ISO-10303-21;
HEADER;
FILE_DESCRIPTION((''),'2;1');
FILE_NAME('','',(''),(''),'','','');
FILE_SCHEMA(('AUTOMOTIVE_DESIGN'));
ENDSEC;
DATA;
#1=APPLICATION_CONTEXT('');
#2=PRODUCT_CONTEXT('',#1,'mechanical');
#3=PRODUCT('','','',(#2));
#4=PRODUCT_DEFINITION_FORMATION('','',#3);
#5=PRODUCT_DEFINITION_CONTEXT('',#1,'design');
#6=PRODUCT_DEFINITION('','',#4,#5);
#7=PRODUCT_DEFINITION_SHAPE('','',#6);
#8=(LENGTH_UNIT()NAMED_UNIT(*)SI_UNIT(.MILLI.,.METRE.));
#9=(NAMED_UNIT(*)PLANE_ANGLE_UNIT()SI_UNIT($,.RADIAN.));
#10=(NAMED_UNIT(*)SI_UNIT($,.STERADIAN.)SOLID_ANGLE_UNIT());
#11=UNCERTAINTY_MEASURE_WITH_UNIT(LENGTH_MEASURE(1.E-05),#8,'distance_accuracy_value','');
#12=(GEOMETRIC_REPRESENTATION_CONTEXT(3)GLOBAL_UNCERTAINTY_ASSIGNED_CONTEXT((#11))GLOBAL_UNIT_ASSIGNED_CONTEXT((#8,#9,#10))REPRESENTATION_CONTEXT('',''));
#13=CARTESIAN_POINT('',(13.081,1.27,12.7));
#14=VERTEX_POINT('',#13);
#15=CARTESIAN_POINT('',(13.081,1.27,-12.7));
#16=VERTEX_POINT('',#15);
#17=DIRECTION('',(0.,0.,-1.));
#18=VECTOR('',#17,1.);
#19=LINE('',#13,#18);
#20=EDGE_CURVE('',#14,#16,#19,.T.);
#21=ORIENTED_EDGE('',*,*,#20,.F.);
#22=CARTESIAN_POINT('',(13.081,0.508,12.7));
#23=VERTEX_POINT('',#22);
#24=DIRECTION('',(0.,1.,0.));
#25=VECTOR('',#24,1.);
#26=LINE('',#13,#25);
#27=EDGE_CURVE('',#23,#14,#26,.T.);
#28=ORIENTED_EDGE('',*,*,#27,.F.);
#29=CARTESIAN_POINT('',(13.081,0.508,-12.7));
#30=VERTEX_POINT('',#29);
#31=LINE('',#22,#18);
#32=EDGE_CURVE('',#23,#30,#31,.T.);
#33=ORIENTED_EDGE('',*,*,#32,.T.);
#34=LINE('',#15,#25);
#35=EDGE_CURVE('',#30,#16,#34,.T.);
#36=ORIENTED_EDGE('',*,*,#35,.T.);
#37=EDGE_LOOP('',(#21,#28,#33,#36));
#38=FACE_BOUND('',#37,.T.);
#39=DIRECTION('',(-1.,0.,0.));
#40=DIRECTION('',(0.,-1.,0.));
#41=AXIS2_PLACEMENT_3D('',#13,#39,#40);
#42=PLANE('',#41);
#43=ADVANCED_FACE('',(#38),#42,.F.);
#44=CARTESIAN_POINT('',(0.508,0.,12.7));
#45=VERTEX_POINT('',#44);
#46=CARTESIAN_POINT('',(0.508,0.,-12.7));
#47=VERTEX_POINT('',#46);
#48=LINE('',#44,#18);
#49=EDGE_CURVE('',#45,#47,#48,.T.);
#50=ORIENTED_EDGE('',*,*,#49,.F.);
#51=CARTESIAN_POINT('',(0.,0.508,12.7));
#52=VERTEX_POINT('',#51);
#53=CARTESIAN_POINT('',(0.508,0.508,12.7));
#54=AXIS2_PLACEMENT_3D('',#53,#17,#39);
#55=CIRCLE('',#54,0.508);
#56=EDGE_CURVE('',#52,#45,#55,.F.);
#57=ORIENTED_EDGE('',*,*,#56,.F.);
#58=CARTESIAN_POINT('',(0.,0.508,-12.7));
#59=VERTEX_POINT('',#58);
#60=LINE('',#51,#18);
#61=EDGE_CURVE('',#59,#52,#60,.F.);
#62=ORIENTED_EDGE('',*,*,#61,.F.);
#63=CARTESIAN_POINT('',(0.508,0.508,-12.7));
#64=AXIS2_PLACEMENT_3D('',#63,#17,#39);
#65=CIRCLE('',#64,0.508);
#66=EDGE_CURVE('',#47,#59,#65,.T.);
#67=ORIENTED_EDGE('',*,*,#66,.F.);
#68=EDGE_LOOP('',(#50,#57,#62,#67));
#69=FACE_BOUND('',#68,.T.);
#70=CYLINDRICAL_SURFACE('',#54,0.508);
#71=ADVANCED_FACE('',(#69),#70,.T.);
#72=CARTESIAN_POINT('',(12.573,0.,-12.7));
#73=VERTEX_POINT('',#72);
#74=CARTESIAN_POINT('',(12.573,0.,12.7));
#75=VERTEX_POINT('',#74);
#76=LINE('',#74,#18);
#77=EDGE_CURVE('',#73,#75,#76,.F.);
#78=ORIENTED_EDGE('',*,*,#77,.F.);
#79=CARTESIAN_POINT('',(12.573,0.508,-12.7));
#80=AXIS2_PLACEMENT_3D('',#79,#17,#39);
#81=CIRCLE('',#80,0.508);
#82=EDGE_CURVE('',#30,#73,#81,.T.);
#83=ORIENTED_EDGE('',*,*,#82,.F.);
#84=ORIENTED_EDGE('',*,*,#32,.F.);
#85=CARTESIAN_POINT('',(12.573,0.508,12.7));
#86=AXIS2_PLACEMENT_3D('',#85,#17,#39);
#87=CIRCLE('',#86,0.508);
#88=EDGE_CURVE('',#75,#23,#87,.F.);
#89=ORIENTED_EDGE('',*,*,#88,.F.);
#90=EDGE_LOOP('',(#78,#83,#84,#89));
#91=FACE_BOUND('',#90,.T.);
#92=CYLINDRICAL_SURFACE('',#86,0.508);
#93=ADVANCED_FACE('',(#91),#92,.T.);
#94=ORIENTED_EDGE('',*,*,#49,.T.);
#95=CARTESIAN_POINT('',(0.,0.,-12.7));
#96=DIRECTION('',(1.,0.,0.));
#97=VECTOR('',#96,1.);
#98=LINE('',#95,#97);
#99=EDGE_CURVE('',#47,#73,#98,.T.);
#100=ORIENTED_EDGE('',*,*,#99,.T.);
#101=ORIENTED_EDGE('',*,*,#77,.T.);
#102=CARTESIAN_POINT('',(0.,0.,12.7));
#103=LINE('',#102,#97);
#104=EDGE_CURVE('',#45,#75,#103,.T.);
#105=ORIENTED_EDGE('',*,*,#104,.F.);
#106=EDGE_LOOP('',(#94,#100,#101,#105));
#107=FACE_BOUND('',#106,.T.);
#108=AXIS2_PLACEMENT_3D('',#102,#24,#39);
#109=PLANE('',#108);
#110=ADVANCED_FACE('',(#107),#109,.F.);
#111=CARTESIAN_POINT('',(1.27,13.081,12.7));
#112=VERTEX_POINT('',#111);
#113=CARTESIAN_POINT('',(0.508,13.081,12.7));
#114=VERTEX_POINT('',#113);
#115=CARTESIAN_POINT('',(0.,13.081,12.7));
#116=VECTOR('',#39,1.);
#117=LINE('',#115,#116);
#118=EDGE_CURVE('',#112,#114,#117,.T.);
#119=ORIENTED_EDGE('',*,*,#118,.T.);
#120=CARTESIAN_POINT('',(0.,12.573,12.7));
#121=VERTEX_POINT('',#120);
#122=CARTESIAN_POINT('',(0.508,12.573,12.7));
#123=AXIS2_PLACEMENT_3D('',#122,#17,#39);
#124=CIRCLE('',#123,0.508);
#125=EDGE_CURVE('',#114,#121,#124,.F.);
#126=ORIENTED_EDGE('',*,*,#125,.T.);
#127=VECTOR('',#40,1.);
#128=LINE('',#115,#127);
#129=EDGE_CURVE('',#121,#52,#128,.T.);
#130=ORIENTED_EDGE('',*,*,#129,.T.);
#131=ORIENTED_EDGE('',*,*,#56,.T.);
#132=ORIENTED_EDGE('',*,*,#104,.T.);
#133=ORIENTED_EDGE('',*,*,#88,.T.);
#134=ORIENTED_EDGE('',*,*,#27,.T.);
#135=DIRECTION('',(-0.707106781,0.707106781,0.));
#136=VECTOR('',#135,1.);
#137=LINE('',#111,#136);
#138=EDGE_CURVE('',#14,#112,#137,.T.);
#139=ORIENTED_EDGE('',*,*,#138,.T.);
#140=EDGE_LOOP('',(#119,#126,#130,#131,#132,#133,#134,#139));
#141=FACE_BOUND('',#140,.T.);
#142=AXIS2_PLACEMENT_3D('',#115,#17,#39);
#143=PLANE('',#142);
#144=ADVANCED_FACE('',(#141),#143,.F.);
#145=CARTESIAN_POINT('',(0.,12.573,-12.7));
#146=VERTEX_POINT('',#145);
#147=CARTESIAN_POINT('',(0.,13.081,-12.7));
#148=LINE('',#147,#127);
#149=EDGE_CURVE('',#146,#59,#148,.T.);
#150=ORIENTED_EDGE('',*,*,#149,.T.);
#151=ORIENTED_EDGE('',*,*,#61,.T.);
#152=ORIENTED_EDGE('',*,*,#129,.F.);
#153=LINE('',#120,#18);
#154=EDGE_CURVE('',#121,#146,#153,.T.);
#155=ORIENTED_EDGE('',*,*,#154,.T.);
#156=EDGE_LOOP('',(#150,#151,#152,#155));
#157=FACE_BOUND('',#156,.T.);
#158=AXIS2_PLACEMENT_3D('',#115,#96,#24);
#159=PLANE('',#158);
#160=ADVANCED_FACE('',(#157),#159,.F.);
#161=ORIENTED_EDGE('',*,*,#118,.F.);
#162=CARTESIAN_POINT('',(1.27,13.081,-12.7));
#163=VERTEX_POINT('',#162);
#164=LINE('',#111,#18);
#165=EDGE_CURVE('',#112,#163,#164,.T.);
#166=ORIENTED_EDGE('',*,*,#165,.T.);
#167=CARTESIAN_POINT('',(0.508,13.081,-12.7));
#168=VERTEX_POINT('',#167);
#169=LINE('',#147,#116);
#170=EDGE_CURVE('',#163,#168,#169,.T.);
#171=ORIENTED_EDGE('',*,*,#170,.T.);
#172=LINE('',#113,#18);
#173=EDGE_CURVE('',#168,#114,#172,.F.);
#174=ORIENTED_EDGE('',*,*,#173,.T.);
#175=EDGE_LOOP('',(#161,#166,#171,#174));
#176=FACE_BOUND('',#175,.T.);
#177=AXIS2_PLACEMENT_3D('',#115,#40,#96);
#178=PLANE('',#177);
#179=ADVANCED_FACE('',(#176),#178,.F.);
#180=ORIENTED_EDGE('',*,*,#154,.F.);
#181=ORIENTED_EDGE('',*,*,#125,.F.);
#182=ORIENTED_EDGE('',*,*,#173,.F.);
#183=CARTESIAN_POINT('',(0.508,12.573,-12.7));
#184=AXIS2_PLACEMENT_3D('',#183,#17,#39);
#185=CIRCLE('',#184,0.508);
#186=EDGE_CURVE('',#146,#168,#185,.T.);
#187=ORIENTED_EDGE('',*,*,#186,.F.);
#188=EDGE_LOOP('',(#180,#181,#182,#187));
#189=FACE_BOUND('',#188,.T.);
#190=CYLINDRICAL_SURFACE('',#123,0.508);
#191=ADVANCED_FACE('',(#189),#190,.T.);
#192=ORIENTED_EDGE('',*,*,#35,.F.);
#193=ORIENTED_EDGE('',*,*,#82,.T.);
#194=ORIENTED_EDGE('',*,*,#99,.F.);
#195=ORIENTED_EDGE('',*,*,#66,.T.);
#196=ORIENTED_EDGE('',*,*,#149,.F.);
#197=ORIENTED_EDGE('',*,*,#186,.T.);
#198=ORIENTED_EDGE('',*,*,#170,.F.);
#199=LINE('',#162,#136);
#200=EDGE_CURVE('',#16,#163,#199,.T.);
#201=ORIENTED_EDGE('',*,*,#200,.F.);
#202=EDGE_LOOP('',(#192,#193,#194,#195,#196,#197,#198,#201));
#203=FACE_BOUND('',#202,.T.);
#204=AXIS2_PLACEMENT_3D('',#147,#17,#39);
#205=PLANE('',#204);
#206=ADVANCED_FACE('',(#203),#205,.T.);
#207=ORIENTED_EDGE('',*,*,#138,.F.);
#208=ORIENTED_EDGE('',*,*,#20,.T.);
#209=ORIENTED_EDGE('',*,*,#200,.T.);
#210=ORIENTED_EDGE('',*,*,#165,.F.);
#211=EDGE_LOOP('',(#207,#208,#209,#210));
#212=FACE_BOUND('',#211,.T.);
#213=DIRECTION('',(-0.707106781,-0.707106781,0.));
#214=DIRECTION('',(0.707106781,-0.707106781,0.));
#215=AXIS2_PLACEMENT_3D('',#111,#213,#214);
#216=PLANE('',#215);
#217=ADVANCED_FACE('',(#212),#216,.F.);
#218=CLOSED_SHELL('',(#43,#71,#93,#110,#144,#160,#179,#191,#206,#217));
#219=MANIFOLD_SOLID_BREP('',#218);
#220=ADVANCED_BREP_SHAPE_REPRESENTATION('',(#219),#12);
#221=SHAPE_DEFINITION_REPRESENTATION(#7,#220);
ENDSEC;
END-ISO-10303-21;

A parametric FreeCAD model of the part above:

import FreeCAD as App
import Part
import Sketcher

V = App.Vector
Q = App.Units.Quantity


def edges_at(feature, points):
    """Names of the edges that pass closest to the given points."""
    edges = feature.Shape.Edges
    near = lambda p: min(range(len(edges)), key=lambda i: edges[i].distToShape(Part.Vertex(*p))[0])
    return sorted({f"Edge{near(p) + 1}" for p in points})

doc = App.newDocument("Part")
params = doc.addObject("Spreadsheet::Sheet", "Params")
for row, (alias, value) in enumerate([
    ("sketch1_width", "0.05 in"),
    ("sketch1_width2", "0.515 in"),
    ("pad1_length", "1 in"),
    ("fillet_radius", "0.02 in"),
], start=1):
    params.set(f"A{row}", alias)
    params.set(f"B{row}", "=" + value)
    params.setAlias(f"B{row}", alias)

body = doc.addObject("PartDesign::Body", "Body")

# Sketch on XY plane
sketch1 = body.newObject("Sketcher::SketchObject", "Sketch")
sketch1.AttachmentSupport = (doc.getObject("XY_Plane"), [""])
sketch1.MapMode = "FlatFace"
sketch1.addGeometry(Part.LineSegment(V(0, 13.081, 0), V(0, 0, 0)), False)
sketch1.addGeometry(Part.LineSegment(V(0, 0, 0), V(13.081, 0, 0)), False)
sketch1.addGeometry(Part.LineSegment(V(13.081, 0, 0), V(13.081, 1.27, 0)), False)
sketch1.addGeometry(Part.LineSegment(V(13.081, 1.27, 0), V(1.27, 13.081, 0)), False)
sketch1.addGeometry(Part.LineSegment(V(1.27, 13.081, 0), V(0, 13.081, 0)), False)
sketch1.addConstraint(Sketcher.Constraint("Coincident", 0, 2, 1, 1))
sketch1.addConstraint(Sketcher.Constraint("Coincident", 1, 2, 2, 1))
sketch1.addConstraint(Sketcher.Constraint("Coincident", 2, 2, 3, 1))
sketch1.addConstraint(Sketcher.Constraint("Coincident", 3, 2, 4, 1))
sketch1.addConstraint(Sketcher.Constraint("Coincident", 4, 2, 0, 1))
sketch1.addConstraint(Sketcher.Constraint("Vertical", 0))
sketch1.addConstraint(Sketcher.Constraint("Horizontal", 1))
sketch1.addConstraint(Sketcher.Constraint("Vertical", 2))
sketch1.addConstraint(Sketcher.Constraint("Horizontal", 4))
sketch1.addConstraint(Sketcher.Constraint("Coincident", 0, 2, -1, 1))
sketch1.addConstraint(Sketcher.Constraint("Equal", 1, 0))
sketch1.addConstraint(Sketcher.Constraint("Equal", 4, 2))
sketch1.addConstraint(Sketcher.Constraint("DistanceX", 4, 2, 4, 1, Q("0.05 in")))
sketch1.addConstraint(Sketcher.Constraint("DistanceX", 1, 1, 1, 2, Q("0.515 in")))
sketch1.setExpression("Constraints[12]", "Params.sketch1_width")
sketch1.setExpression("Constraints[13]", "Params.sketch1_width2")
pad1 = body.newObject("PartDesign::Pad", "Pad")
pad1.Profile = sketch1
pad1.setExpression("Length", "Params.pad1_length")
pad1.Midplane = True
doc.recompute()

fillet = body.newObject("PartDesign::Fillet", "Fillet")
fillet.Base = (pad1, edges_at(pad1, [(13.081, 0, 0), (0, 0, 0), (0, 13.081, 0)]))
fillet.setExpression("Radius", "Params.fillet_radius")

doc.recompute()
